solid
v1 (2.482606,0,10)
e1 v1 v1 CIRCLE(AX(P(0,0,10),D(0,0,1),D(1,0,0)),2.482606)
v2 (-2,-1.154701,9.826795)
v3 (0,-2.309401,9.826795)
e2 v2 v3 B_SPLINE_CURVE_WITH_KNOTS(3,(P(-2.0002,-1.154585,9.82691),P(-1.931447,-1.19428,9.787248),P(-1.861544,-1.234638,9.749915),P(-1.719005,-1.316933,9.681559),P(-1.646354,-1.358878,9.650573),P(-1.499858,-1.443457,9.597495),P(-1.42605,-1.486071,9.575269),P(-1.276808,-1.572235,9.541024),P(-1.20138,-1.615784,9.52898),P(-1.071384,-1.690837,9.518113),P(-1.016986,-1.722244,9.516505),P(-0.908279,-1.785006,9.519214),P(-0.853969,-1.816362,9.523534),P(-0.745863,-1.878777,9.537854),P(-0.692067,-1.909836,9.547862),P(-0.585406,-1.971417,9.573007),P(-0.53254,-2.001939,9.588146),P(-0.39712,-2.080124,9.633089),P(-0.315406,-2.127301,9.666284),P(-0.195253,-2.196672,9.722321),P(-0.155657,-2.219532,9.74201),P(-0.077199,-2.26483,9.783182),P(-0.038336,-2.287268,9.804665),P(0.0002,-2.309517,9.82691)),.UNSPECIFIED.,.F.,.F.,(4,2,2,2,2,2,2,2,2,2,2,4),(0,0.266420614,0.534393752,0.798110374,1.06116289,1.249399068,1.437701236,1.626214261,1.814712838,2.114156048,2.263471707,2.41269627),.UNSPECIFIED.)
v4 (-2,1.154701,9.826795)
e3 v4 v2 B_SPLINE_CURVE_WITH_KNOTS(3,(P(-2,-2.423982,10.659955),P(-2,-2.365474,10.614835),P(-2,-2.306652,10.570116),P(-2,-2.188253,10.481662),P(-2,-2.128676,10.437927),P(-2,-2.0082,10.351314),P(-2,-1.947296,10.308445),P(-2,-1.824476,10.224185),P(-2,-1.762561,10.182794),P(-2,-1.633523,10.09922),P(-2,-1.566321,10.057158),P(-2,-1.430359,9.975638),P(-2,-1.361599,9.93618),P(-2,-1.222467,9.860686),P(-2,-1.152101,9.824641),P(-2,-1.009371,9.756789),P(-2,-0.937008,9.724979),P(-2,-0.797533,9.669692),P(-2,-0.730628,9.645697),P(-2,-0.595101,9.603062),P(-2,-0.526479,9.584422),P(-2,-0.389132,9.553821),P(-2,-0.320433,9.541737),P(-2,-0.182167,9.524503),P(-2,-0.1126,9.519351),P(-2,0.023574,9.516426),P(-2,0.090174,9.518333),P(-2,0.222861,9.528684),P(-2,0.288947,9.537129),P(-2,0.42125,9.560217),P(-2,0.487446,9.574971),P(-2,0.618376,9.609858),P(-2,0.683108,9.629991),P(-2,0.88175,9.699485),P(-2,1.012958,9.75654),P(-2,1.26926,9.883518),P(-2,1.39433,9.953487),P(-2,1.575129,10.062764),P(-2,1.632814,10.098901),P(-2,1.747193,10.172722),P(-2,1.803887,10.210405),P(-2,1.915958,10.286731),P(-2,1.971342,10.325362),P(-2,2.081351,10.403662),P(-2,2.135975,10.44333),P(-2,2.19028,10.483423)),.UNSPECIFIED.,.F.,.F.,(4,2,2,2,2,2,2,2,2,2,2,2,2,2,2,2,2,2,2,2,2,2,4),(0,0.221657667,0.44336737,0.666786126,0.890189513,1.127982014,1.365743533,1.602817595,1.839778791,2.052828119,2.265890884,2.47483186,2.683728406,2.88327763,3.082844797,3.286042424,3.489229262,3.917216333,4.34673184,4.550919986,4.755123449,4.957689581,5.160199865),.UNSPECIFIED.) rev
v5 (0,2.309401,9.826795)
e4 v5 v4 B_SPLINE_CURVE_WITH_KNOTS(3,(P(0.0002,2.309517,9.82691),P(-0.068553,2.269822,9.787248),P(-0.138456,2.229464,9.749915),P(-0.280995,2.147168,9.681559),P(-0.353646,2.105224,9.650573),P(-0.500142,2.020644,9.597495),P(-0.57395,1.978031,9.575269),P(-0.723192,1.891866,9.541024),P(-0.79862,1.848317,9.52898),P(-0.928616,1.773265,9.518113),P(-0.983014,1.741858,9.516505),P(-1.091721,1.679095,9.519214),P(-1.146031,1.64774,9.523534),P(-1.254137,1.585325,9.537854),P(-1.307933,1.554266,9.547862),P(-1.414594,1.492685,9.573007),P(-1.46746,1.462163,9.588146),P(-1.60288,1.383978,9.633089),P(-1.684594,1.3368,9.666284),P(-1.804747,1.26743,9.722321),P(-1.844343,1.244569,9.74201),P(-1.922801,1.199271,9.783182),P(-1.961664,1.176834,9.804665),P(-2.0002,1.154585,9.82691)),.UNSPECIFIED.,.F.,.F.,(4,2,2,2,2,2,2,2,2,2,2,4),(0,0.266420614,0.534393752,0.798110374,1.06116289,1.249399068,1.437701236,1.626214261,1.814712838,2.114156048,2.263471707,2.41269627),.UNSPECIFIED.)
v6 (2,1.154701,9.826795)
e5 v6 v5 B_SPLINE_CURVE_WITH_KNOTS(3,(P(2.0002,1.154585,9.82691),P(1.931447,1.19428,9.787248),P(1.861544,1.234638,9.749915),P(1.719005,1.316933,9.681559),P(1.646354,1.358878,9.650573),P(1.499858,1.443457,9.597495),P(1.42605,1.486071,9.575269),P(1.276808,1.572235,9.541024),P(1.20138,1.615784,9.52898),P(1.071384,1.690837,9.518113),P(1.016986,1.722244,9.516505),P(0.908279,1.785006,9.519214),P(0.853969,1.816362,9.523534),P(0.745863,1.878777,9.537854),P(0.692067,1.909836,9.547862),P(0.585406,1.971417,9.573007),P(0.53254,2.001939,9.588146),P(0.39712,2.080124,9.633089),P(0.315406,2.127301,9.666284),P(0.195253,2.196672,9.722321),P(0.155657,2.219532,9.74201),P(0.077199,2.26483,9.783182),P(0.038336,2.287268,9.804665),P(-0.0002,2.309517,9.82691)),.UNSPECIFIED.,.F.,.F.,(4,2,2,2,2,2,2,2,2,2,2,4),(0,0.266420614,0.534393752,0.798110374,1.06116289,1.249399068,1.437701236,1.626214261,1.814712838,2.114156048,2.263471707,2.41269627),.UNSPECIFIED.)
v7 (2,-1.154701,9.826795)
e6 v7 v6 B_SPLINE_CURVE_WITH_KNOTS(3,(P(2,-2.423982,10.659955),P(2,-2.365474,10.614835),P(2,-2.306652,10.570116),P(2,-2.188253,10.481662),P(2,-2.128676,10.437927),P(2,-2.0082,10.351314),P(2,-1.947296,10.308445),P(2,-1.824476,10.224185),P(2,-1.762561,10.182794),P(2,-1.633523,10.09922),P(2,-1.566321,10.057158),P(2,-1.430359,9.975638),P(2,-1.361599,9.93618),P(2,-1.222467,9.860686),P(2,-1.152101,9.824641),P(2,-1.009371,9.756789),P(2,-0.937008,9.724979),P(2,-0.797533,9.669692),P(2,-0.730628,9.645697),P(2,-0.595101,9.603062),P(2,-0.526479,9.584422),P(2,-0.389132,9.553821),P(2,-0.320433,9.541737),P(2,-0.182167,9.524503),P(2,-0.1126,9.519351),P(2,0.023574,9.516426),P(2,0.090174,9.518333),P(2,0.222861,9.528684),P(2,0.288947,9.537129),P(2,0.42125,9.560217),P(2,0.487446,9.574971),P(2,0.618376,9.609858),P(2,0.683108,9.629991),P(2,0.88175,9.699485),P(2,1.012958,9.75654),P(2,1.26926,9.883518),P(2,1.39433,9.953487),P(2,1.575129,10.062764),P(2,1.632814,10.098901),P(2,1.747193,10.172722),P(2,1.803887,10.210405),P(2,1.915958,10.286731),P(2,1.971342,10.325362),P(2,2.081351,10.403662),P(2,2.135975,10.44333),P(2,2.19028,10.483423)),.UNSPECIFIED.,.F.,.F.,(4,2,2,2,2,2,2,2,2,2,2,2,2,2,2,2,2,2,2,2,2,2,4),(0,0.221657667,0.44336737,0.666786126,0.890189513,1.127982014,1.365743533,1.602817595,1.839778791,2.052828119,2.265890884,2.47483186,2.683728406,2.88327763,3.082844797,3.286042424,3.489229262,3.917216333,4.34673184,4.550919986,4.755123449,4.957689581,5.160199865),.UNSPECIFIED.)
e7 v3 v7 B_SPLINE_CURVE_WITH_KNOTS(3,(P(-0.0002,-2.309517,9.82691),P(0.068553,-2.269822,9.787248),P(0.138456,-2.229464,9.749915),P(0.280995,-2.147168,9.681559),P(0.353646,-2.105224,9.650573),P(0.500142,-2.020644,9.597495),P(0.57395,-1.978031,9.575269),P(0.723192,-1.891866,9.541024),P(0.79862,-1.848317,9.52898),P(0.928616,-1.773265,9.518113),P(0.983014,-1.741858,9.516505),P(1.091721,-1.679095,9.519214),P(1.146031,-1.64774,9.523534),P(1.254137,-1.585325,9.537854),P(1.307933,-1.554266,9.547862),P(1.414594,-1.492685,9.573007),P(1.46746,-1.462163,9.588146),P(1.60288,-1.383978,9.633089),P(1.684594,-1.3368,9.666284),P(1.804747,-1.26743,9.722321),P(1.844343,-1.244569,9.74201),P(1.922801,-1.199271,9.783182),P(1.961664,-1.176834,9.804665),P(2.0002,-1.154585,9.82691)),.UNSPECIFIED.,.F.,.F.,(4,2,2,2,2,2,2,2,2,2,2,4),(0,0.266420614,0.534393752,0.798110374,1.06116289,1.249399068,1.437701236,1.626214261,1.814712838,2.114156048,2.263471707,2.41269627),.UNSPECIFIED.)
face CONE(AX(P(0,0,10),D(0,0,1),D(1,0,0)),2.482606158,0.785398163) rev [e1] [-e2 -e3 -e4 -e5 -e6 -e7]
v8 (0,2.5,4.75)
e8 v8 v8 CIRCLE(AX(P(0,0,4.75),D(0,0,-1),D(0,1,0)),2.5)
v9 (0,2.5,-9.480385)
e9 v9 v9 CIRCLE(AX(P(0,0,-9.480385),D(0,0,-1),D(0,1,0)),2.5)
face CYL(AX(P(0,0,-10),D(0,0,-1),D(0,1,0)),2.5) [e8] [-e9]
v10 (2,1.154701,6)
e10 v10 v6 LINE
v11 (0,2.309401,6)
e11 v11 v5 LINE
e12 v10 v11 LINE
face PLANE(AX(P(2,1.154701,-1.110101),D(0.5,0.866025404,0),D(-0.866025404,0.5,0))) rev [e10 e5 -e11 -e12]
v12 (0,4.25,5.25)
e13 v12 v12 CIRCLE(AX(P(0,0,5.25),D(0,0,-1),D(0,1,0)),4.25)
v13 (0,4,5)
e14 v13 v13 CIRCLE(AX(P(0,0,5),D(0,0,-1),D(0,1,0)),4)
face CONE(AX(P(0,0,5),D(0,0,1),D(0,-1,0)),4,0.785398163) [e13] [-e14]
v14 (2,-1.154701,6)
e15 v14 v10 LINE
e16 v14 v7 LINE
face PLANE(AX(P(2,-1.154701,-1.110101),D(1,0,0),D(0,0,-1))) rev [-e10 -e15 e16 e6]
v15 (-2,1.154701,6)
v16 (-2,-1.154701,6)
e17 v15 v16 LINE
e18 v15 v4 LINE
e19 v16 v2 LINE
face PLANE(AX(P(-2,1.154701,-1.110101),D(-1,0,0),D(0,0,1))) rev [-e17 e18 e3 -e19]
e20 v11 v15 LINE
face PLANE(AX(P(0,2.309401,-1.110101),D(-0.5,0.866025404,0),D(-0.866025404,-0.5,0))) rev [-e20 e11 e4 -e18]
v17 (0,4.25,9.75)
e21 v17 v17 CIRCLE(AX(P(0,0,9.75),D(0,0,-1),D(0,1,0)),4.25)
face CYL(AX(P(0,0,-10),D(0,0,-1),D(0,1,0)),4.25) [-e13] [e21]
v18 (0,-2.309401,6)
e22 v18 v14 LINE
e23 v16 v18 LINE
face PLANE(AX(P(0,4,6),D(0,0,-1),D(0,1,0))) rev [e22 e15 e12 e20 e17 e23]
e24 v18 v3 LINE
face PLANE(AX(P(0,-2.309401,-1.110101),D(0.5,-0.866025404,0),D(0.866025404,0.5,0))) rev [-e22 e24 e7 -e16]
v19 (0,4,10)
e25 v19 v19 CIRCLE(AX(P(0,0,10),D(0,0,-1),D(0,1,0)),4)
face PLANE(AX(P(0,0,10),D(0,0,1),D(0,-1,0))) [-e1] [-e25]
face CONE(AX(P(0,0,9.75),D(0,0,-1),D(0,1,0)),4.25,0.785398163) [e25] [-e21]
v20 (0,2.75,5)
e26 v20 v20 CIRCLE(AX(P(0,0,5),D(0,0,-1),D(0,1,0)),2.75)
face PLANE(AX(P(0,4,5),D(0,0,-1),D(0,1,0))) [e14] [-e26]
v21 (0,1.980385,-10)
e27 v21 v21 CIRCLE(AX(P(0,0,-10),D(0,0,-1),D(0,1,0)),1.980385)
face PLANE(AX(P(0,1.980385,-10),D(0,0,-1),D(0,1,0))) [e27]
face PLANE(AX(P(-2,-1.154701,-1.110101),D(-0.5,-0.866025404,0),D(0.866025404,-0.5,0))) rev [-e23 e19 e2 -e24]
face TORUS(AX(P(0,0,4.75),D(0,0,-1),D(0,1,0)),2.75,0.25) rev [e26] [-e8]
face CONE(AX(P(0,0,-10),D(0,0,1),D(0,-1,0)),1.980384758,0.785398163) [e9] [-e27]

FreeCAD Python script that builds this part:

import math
import FreeCAD as App
import Part
import Sketcher
from FreeCAD import Vector
Q = App.Units.Quantity


def add_polygon(sketch, points):
    """Adds a closed chain of lines whose ends are joined by coincident constraints."""
    first, n = sketch.GeometryCount, len(points)
    for a, b in zip(points, points[1:] + points[:1]):
        sketch.addGeometry(Part.LineSegment(App.Vector(*a, 0), App.Vector(*b, 0)), False)
    for i in range(n):
        sketch.addConstraint(Sketcher.Constraint("Coincident", first + i, 2, first + (i + 1) % n, 1))

doc = App.newDocument("Part")
body = doc.addObject("PartDesign::Body", "Body")

# Sketch on YZ plane
sketch1 = body.newObject("Sketcher::SketchObject", "Sketch")
sketch1.AttachmentSupport = (doc.getObject("YZ_Plane"), [""])
sketch1.MapMode = "FlatFace"
sketch1.addGeometry([
    Part.LineSegment(Vector(4, 10, 0), Vector(0, 10, 0)),  # 0
    Part.LineSegment(Vector(0, 10, 0), Vector(0, -10, 0)),  # 1
    Part.LineSegment(Vector(0, -10, 0), Vector(1.98, -10, 0)),  # 2
    Part.LineSegment(Vector(1.98, -10, 0), Vector(2.5, -9.48, 0)),  # 3
    Part.LineSegment(Vector(2.5, -9.48, 0), Vector(2.5, 4.75, 0)),  # 4
    Part.ArcOfCircle(Part.Circle(Vector(2.75, 4.75, 0), Vector(0, 0, 1), 0.25), math.radians(90), math.radians(180)),  # 5
    Part.LineSegment(Vector(2.75, 5, 0), Vector(4, 5, 0)),  # 6
    Part.LineSegment(Vector(4, 5, 0), Vector(4.25, 5.25, 0)),  # 7
    Part.LineSegment(Vector(4.25, 5.25, 0), Vector(4.25, 9.75, 0)),  # 8
    Part.LineSegment(Vector(4.25, 9.75, 0), Vector(4, 10, 0)),  # 9
], False)
sketch1.addConstraint([
    Sketcher.Constraint("Coincident", 0, 2, 1, 1),
    Sketcher.Constraint("Coincident", 1, 2, 2, 1),
    Sketcher.Constraint("Coincident", 2, 2, 3, 1),
    Sketcher.Constraint("Coincident", 3, 2, 4, 1),
    Sketcher.Constraint("Tangent", 4, 2, 5, 2),
    Sketcher.Constraint("Tangent", 5, 1, 6, 1),
    Sketcher.Constraint("Coincident", 6, 2, 7, 1),
    Sketcher.Constraint("Coincident", 7, 2, 8, 1),
    Sketcher.Constraint("Coincident", 8, 2, 9, 1),
    Sketcher.Constraint("Coincident", 9, 2, 0, 1),
    Sketcher.Constraint("Horizontal", 0),
    Sketcher.Constraint("Vertical", 1),
    Sketcher.Constraint("Horizontal", 2),
    Sketcher.Constraint("Vertical", 4),
    Sketcher.Constraint("Horizontal", 6),
    Sketcher.Constraint("Vertical", 8),
    Sketcher.Constraint("Symmetric", 0, 2, 1, 2, -1, 1),
    Sketcher.Constraint("Parallel", 3, 7),
    Sketcher.Constraint("Perpendicular", 7, 9),
    Sketcher.Constraint("Vertical", 6, 2, 9, 2),
    Sketcher.Constraint("Equal", 7, 9),
    Sketcher.Constraint("DistanceX", 0, 2, 0, 1, Q("4 mm")),
    Sketcher.Constraint("DistanceY", 1, 2, 1, 1, Q("20 mm")),
    Sketcher.Constraint("Radius", 5, Q("0.25 mm")),
    Sketcher.Constraint("DistanceY", 8, 1, 8, 2, Q("4.5 mm")),
    Sketcher.Constraint("DistanceY", -1, 1, 5, 1, Q("5 mm")),
    Sketcher.Constraint("DistanceX", 6, 1, 6, 2, Q("1.25 mm")),
    Sketcher.Constraint("DistanceX", 2, 1, 2, 2, Q("1.980385 mm")),
])
revolution = body.newObject("PartDesign::Revolution", "Revolution")
revolution.Profile = sketch1
revolution.ReferenceAxis = (sketch1, ["V_Axis"])
revolution.Angle = 360

# Sketch on XY plane
sketch2 = body.newObject("Sketcher::SketchObject", "Sketch001")
sketch2.AttachmentSupport = (doc.getObject("XY_Plane"), [""])
sketch2.MapMode = "FlatFace"
sketch2.AttachmentOffset = App.Placement(Vector(0, 0, 10), App.Rotation())
add_polygon(sketch2, [(2, -1.2), (2, 1.2), (0, 2.3), (-2, 1.2), (-2, -1.2), (0, -2.3)])  # lines 0-5
sketch2.addConstraint([
    Sketcher.Constraint("Vertical", 0),
    Sketcher.Constraint("Vertical", 3),
    Sketcher.Constraint("Symmetric", 0, 2, 3, 2, -1, 1),
    Sketcher.Constraint("Symmetric", 1, 2, 4, 2, -1, 1),
    Sketcher.Constraint("PointOnObject", 1, 2, -2),
    Sketcher.Constraint("Parallel", 2, 5),
    Sketcher.Constraint("Horizontal", 0, 2, 2, 2),
    Sketcher.Constraint("Angle", 1, Q("150 deg")),
    Sketcher.Constraint("DistanceX", -1, 1, 0, 2, Q("2 mm")),
    Sketcher.Constraint("DistanceY", 0, 1, 0, 2, Q("2.309401 mm")),
])
pocket1 = body.newObject("PartDesign::Pocket", "Pocket")
pocket1.Profile = sketch2
pocket1.Length = 4

# Sketch on YZ plane
sketch3 = body.newObject("Sketcher::SketchObject", "Sketch002")
sketch3.AttachmentSupport = (doc.getObject("YZ_Plane"), [""])
sketch3.MapMode = "FlatFace"
add_polygon(sketch3, [(0, 10), (-2.5, 10), (0, 7.5)])  # lines 0-2
sketch3.addConstraint([
    Sketcher.Constraint("Horizontal", 0),
    Sketcher.Constraint("Vertical", 2),
    Sketcher.Constraint("PointOnObject", 1, 2, -2),
    Sketcher.Constraint("Equal", 0, 2),
    Sketcher.Constraint("DistanceY", -1, 1, 0, 2, Q("10 mm")),
    Sketcher.Constraint("DistanceX", 0, 2, 0, 1, Q("2.482606 mm")),
])
groove = body.newObject("PartDesign::Groove", "Groove")
groove.Profile = sketch3
groove.ReferenceAxis = (sketch3, ["V_Axis"])
groove.Angle = 360

doc.recompute()
